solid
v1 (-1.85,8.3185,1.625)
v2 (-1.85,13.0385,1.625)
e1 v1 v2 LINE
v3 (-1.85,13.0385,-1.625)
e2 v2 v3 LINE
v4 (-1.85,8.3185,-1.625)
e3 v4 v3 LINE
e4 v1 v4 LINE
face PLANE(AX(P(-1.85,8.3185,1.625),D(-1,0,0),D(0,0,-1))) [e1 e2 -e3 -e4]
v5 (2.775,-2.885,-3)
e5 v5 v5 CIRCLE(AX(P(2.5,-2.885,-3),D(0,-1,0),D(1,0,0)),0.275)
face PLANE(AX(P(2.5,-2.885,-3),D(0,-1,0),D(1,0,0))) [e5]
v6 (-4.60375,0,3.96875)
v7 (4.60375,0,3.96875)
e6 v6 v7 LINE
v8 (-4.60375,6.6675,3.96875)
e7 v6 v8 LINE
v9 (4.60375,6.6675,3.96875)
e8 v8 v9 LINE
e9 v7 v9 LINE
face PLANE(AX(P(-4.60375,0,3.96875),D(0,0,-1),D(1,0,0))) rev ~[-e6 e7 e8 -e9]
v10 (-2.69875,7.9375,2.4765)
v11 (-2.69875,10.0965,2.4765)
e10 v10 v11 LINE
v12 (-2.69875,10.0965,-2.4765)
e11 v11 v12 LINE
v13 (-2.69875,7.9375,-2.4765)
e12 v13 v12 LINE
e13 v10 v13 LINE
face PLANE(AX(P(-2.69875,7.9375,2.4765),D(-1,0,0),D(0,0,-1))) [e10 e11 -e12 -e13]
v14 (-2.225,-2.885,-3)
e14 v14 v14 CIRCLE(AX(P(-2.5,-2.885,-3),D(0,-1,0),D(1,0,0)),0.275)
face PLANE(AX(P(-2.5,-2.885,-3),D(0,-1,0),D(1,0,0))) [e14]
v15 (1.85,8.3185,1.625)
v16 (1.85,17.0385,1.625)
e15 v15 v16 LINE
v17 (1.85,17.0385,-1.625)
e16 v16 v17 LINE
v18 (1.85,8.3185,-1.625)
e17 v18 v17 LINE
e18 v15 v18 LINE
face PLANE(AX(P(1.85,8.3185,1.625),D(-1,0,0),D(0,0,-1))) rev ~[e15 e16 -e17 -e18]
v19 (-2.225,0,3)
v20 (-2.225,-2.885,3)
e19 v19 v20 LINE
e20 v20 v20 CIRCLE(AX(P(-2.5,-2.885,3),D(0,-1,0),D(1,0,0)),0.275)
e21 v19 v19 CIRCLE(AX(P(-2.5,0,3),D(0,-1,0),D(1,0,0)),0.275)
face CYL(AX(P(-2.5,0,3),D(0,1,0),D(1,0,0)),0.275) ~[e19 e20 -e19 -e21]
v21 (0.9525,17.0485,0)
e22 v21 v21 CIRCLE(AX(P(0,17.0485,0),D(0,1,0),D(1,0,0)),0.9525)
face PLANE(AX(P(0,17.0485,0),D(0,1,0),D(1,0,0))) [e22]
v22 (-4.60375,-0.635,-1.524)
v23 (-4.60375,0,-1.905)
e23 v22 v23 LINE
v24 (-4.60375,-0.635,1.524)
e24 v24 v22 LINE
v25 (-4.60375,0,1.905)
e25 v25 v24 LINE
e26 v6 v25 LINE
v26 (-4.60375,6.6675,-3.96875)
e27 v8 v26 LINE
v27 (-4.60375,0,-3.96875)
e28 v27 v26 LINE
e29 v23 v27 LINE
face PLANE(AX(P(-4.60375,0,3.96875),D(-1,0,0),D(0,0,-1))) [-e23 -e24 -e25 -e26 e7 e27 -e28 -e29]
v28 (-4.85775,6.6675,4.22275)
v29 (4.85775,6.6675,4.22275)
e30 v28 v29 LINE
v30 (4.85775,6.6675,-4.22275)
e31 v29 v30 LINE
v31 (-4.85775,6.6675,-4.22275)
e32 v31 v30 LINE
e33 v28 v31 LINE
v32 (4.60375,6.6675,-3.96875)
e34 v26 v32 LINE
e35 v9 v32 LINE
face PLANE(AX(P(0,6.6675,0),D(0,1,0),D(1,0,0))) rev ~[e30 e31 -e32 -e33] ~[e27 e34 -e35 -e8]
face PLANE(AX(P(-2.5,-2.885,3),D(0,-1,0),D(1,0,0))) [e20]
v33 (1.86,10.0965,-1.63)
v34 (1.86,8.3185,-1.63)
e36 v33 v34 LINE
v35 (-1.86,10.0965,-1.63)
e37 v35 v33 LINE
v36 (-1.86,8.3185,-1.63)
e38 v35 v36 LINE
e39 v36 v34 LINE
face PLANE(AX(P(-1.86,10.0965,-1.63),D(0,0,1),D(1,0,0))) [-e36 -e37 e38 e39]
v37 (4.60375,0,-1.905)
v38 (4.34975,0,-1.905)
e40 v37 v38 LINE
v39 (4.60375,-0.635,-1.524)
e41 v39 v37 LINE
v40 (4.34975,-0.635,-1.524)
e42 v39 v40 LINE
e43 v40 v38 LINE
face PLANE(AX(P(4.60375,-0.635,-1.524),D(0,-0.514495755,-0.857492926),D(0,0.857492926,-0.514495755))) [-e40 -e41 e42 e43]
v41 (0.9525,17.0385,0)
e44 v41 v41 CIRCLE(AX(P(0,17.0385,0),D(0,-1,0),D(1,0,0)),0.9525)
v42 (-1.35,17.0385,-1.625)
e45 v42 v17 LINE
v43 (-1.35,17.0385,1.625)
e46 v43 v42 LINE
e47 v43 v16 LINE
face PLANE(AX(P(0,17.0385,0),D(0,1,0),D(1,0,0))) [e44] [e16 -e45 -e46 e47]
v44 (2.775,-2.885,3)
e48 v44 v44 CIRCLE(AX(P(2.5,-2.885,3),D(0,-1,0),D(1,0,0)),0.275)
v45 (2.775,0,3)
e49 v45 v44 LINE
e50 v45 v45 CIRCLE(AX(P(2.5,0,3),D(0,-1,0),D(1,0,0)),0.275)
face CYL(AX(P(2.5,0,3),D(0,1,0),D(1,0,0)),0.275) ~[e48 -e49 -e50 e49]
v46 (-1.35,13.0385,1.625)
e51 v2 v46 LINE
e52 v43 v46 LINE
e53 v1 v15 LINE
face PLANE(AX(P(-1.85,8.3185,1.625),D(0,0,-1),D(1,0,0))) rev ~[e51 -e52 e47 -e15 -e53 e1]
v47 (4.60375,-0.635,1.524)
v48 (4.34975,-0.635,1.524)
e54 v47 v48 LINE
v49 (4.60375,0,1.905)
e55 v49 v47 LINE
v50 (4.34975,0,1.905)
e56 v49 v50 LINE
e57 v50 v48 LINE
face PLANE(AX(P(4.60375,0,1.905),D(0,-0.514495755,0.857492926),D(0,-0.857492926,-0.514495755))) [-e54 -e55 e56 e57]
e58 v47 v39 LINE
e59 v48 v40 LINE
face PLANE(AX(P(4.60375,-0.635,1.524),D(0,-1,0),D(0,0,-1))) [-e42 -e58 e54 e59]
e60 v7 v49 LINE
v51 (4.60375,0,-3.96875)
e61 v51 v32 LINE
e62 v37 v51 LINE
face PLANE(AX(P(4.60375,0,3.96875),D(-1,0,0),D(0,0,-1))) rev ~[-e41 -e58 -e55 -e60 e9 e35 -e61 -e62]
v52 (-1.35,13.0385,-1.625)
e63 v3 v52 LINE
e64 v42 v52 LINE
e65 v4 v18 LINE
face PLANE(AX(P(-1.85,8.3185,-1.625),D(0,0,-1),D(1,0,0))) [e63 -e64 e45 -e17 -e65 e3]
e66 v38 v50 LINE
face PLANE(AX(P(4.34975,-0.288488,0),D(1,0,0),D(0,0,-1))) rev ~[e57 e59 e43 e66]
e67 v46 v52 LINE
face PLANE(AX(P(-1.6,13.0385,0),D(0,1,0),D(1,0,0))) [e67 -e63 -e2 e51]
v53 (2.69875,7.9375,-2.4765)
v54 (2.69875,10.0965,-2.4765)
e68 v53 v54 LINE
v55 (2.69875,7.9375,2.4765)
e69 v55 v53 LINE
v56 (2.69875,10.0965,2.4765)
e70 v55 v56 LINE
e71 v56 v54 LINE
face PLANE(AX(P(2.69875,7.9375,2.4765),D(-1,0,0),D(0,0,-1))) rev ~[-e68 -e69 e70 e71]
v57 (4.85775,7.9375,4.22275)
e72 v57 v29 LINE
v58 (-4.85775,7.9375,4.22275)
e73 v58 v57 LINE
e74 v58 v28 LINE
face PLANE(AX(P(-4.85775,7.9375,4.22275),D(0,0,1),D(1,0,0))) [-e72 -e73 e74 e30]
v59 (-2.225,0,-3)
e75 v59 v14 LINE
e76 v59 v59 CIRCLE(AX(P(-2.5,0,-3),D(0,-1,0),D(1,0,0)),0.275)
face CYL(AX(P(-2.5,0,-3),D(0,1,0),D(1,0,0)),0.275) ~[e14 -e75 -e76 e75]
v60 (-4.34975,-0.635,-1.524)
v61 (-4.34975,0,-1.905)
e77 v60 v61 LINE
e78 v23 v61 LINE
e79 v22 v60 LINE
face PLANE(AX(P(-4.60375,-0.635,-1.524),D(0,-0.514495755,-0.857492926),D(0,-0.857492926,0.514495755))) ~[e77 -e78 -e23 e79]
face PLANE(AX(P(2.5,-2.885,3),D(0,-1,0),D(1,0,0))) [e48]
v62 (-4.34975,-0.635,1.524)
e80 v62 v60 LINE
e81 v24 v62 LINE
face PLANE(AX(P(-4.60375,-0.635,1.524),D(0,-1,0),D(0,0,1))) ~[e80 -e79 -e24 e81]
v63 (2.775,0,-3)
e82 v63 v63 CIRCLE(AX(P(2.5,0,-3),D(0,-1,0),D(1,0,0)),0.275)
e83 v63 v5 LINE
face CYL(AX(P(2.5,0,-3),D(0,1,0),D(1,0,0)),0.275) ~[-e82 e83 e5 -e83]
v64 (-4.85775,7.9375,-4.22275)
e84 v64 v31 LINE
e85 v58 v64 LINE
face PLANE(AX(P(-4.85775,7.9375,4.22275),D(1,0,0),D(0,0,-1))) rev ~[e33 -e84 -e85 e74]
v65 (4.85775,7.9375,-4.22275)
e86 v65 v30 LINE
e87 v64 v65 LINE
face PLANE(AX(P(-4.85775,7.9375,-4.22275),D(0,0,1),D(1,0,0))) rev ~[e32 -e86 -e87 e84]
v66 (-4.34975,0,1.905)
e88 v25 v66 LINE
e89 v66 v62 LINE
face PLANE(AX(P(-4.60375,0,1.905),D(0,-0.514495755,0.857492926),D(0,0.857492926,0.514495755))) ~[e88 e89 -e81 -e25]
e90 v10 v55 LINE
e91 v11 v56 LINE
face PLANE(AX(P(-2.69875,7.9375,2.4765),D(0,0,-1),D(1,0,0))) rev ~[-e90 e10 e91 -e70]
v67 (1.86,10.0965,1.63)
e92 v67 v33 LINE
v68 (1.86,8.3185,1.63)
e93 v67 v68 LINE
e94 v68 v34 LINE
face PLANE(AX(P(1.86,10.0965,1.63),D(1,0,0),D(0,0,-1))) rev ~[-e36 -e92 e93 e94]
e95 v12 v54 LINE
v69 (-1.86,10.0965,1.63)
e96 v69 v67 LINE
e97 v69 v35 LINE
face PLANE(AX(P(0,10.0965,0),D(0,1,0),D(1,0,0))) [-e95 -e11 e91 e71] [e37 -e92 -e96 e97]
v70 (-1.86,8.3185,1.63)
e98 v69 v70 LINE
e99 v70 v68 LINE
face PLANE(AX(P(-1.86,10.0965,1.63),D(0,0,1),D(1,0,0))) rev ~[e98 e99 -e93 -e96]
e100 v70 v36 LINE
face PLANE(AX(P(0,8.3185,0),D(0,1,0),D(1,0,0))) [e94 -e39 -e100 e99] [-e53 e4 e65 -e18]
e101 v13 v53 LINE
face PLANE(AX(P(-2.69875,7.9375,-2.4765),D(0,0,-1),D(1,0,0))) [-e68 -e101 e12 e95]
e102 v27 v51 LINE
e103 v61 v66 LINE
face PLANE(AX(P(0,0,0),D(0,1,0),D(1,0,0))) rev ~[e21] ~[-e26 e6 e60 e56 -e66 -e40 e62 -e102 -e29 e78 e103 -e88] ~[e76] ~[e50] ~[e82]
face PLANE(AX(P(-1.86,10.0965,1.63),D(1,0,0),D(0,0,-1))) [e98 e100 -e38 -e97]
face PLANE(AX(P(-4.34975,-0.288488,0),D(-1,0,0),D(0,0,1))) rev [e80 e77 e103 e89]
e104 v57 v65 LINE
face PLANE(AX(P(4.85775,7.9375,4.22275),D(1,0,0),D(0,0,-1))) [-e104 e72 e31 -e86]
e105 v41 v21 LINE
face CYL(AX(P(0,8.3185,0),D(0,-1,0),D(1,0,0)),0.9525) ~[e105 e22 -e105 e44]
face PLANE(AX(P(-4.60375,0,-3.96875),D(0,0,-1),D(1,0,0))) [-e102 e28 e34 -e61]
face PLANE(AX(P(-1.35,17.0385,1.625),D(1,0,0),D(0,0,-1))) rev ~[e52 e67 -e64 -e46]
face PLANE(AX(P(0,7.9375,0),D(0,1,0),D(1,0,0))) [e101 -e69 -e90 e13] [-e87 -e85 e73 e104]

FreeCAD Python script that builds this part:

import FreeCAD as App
import Part
import Sketcher

V = App.Vector
Q = App.Units.Quantity

doc = App.newDocument("Part")
params = doc.addObject("Spreadsheet::Sheet", "Params")
for row, (alias, value) in enumerate([
    ("sketch1_height", "0.3125 in"),
    ("pad1_length", "0.3125 in"),
    ("sketch2_height", "0.195 in"),
    ("pad2_length", "0.085 in"),
    ("pocket1_length", "0.07 in"),
    ("sketch4_height", "0.195 in"),
    ("pad3_length", "0.05 in"),
    ("sketch5_height", "0.15 in"),
    ("sketch5_height2", "0.12 in"),
    ("pad4_length", "0.01 in"),
    ("pad5_length", "8.72 mm"),
    ("pocket2_length", "4 mm"),
    ("sketch8_diameter", "0.075 in"),
    ("pad6_length", "8.73 mm"),
    ("pad7_length", "2.885 mm"),
], start=1):
    params.set(f"A{row}", alias)
    params.set(f"B{row}", "=" + value)
    params.setAlias(f"B{row}", alias)

body = doc.addObject("PartDesign::Body", "Body")

# Sketch on XZ plane
sketch1 = body.newObject("Sketcher::SketchObject", "Sketch")
sketch1.AttachmentSupport = (doc.getObject("XZ_Plane"), [""])
sketch1.MapMode = "FlatFace"
sketch1.addGeometry([
    Part.LineSegment(V(-5, -4, 0), V(-5, 4, 0)),
    Part.LineSegment(V(-5, 4, 0), V(5, 4, 0)),
    Part.LineSegment(V(5, 4, 0), V(5, -4, 0)),
    Part.LineSegment(V(5, -4, 0), V(-5, -4, 0)),
], False)
sketch1.addConstraint([
    Sketcher.Constraint("Coincident", 0, 2, 1, 1),
    Sketcher.Constraint("Coincident", 1, 2, 2, 1),
    Sketcher.Constraint("Coincident", 2, 2, 3, 1),
    Sketcher.Constraint("Coincident", 3, 2, 0, 1),
    Sketcher.Constraint("Vertical", 0),
    Sketcher.Constraint("Horizontal", 1),
    Sketcher.Constraint("Vertical", 2),
    Sketcher.Constraint("Horizontal", 3),
    Sketcher.Constraint("Symmetric", 0, 2, 2, 2, -1, 1),
    Sketcher.Constraint("DistanceY", 0, 1, 0, 2, Q("0.3125 in")),
    Sketcher.Constraint("DistanceX", 1, 1, 1, 2, Q("0.3625 in")),
])
sketch1.setExpression("Constraints[9]", "Params.sketch1_height")
pad1 = body.newObject("PartDesign::Pad", "Pad")
pad1.Profile = sketch1
pad1.setExpression("Length", "Params.pad1_length")
pad1.Reversed = True

# Sketch on XZ plane
sketch2 = body.newObject("Sketcher::SketchObject", "Sketch001")
sketch2.AttachmentSupport = (doc.getObject("XZ_Plane"), [""])
sketch2.MapMode = "FlatFace"
sketch2.AttachmentOffset = App.Placement(V(0, 0, -0.3125 * 25.4), App.Rotation())
sketch2.addGeometry([
    Part.LineSegment(V(-2.7, -2.5, 0), V(-2.7, 2.5, 0)),
    Part.LineSegment(V(-2.7, 2.5, 0), V(2.7, 2.5, 0)),
    Part.LineSegment(V(2.7, 2.5, 0), V(2.7, -2.5, 0)),
    Part.LineSegment(V(2.7, -2.5, 0), V(-2.7, -2.5, 0)),
], False)
sketch2.addConstraint([
    Sketcher.Constraint("Coincident", 0, 2, 1, 1),
    Sketcher.Constraint("Coincident", 1, 2, 2, 1),
    Sketcher.Constraint("Coincident", 2, 2, 3, 1),
    Sketcher.Constraint("Coincident", 3, 2, 0, 1),
    Sketcher.Constraint("Vertical", 0),
    Sketcher.Constraint("Horizontal", 1),
    Sketcher.Constraint("Vertical", 2),
    Sketcher.Constraint("Horizontal", 3),
    Sketcher.Constraint("Symmetric", 0, 2, 2, 2, -1, 1),
    Sketcher.Constraint("DistanceY", 0, 1, 0, 2, Q("0.195 in")),
    Sketcher.Constraint("DistanceX", 1, 1, 1, 2, Q("0.2125 in")),
])
sketch2.setExpression("Constraints[9]", "Params.sketch2_height")
pad2 = body.newObject("PartDesign::Pad", "Pad001")
pad2.Profile = sketch2
pad2.setExpression("Length", "Params.pad2_length")
pad2.Reversed = True

# Sketch on XZ plane
sketch3 = body.newObject("Sketcher::SketchObject", "Sketch002")
sketch3.AttachmentSupport = (doc.getObject("XZ_Plane"), [""])
sketch3.MapMode = "FlatFace"
sketch3.AttachmentOffset = App.Placement(V(0, 0, -0.3975 * 25.4), App.Rotation())
sketch3.addGeometry([
    Part.LineSegment(V(-1.9, -1.6, 0), V(-1.9, 1.6, 0)),
    Part.LineSegment(V(-1.9, 1.6, 0), V(1.9, 1.6, 0)),
    Part.LineSegment(V(1.9, 1.6, 0), V(1.9, -1.6, 0)),
    Part.LineSegment(V(1.9, -1.6, 0), V(-1.9, -1.6, 0)),
], False)
sketch3.addConstraint([
    Sketcher.Constraint("Coincident", 0, 2, 1, 1),
    Sketcher.Constraint("Coincident", 1, 2, 2, 1),
    Sketcher.Constraint("Coincident", 2, 2, 3, 1),
    Sketcher.Constraint("Coincident", 3, 2, 0, 1),
    Sketcher.Constraint("Vertical", 0),
    Sketcher.Constraint("Horizontal", 1),
    Sketcher.Constraint("Vertical", 2),
    Sketcher.Constraint("Horizontal", 3),
    Sketcher.Constraint("Symmetric", 0, 2, 2, 2, -1, 1),
    Sketcher.Constraint("DistanceX", 1, 1, 1, 2, Q("3.72 mm")),
    Sketcher.Constraint("DistanceY", 0, 1, 0, 2, Q("3.26 mm")),
])
pocket1 = body.newObject("PartDesign::Pocket", "Pocket")
pocket1.Profile = sketch3
pocket1.setExpression("Length", "Params.pocket1_length")
pocket1.Reversed = True

# Sketch on XZ plane
sketch4 = body.newObject("Sketcher::SketchObject", "Sketch003")
sketch4.AttachmentSupport = (doc.getObject("XZ_Plane"), [""])
sketch4.MapMode = "FlatFace"
sketch4.AttachmentOffset = App.Placement(V(0, 0, -0.3125 * 25.4), App.Rotation())
sketch4.addGeometry([
    Part.LineSegment(V(-4.9, -4.2, 0), V(-4.9, 4.2, 0)),  # 0
    Part.LineSegment(V(-4.9, 4.2, 0), V(4.9, 4.2, 0)),  # 1
    Part.LineSegment(V(4.9, 4.2, 0), V(4.9, -4.2, 0)),  # 2
    Part.LineSegment(V(4.9, -4.2, 0), V(-4.9, -4.2, 0)),  # 3
    Part.LineSegment(V(2.7, 2.5, 0), V(-2.7, 2.5, 0)),  # 4
    Part.LineSegment(V(-2.7, 2.5, 0), V(-2.7, -2.5, 0)),  # 5
    Part.LineSegment(V(-2.7, -2.5, 0), V(2.7, -2.5, 0)),  # 6
    Part.LineSegment(V(2.7, -2.5, 0), V(2.7, 2.5, 0)),  # 7
], False)
sketch4.addConstraint([
    Sketcher.Constraint("Coincident", 0, 2, 1, 1),
    Sketcher.Constraint("Coincident", 1, 2, 2, 1),
    Sketcher.Constraint("Coincident", 2, 2, 3, 1),
    Sketcher.Constraint("Coincident", 3, 2, 0, 1),
    Sketcher.Constraint("Coincident", 4, 2, 5, 1),
    Sketcher.Constraint("Coincident", 5, 2, 6, 1),
    Sketcher.Constraint("Coincident", 6, 2, 7, 1),
    Sketcher.Constraint("Coincident", 7, 2, 4, 1),
    Sketcher.Constraint("Vertical", 0),
    Sketcher.Constraint("Horizontal", 1),
    Sketcher.Constraint("Vertical", 2),
    Sketcher.Constraint("Horizontal", 3),
    Sketcher.Constraint("Horizontal", 4),
    Sketcher.Constraint("Vertical", 5),
    Sketcher.Constraint("Horizontal", 6),
    Sketcher.Constraint("Vertical", 7),
    Sketcher.Constraint("Symmetric", 0, 2, 2, 2, -1, 1),
    Sketcher.Constraint("Symmetric", 4, 2, 6, 2, -1, 1),
    Sketcher.Constraint("DistanceY", 5, 2, 5, 1, Q("0.195 in")),
    Sketcher.Constraint("DistanceX", 1, 1, 1, 2, Q("0.3825 in")),
    Sketcher.Constraint("DistanceX", 4, 2, 4, 1, Q("0.2125 in")),
    Sketcher.Constraint("DistanceY", 0, 1, 0, 2, Q("0.3325 in")),
])
sketch4.setExpression("Constraints[18]", "Params.sketch4_height")
pad3 = body.newObject("PartDesign::Pad", "Pad002")
pad3.Profile = sketch4
pad3.setExpression("Length", "Params.pad3_length")

# Sketch on YZ plane
sketch5 = body.newObject("Sketcher::SketchObject", "Sketch004")
sketch5.AttachmentSupport = (doc.getObject("YZ_Plane"), [""])
sketch5.MapMode = "FlatFace"
sketch5.AttachmentOffset = App.Placement(V(0, 0, 4.60375), App.Rotation())
sketch5.addGeometry([
    Part.LineSegment(V(-0.6, -1.5, 0), V(0, -1.9, 0)),
    Part.LineSegment(V(0, -1.9, 0), V(0, 1.9, 0)),
    Part.LineSegment(V(0, 1.9, 0), V(-0.6, 1.5, 0)),
    Part.LineSegment(V(-0.6, 1.5, 0), V(-0.6, -1.5, 0)),
], False)
sketch5.addConstraint([
    Sketcher.Constraint("Coincident", 0, 2, 1, 1),
    Sketcher.Constraint("Coincident", 1, 2, 2, 1),
    Sketcher.Constraint("Coincident", 2, 2, 3, 1),
    Sketcher.Constraint("Coincident", 3, 2, 0, 1),
    Sketcher.Constraint("Vertical", 1),
    Sketcher.Constraint("Vertical", 3),
    Sketcher.Constraint("Symmetric", 0, 2, 1, 2, -1, 1),
    Sketcher.Constraint("Equal", 0, 2),
    Sketcher.Constraint("DistanceY", 1, 1, 1, 2, Q("0.15 in")),
    Sketcher.Constraint("DistanceY", 3, 2, 3, 1, Q("0.12 in")),
    Sketcher.Constraint("DistanceX", 2, 2, -1, 1, Q("0.025 in")),
])
sketch5.setExpression("Constraints[8]", "Params.sketch5_height")
sketch5.setExpression("Constraints[9]", "Params.sketch5_height2")
pad4 = body.newObject("PartDesign::Pad", "Pad003")
pad4.Profile = sketch5
pad4.setExpression("Length", "Params.pad4_length")
pad4.Reversed = True
doc.recompute()

mirrored = body.newObject("PartDesign::Mirrored", "Mirrored")
mirrored.Originals = [pad4]
mirrored.MirrorPlane = (doc.getObject("YZ_Plane"), [""])
body.Tip = mirrored

# Sketch on XZ plane
sketch6 = body.newObject("Sketcher::SketchObject", "Sketch005")
sketch6.AttachmentSupport = (doc.getObject("XZ_Plane"), [""])
sketch6.MapMode = "FlatFace"
sketch6.AttachmentOffset = App.Placement(V(0, 0, -0.3275 * 25.4), App.Rotation())
sketch6.addGeometry([
    Part.LineSegment(V(-1.9, -1.6, 0), V(-1.9, 1.6, 0)),
    Part.LineSegment(V(-1.9, 1.6, 0), V(1.9, 1.6, 0)),
    Part.LineSegment(V(1.9, 1.6, 0), V(1.9, -1.6, 0)),
    Part.LineSegment(V(1.9, -1.6, 0), V(-1.9, -1.6, 0)),
], False)
sketch6.addConstraint([
    Sketcher.Constraint("Coincident", 0, 2, 1, 1),
    Sketcher.Constraint("Coincident", 1, 2, 2, 1),
    Sketcher.Constraint("Coincident", 2, 2, 3, 1),
    Sketcher.Constraint("Coincident", 3, 2, 0, 1),
    Sketcher.Constraint("Vertical", 0),
    Sketcher.Constraint("Horizontal", 1),
    Sketcher.Constraint("Vertical", 2),
    Sketcher.Constraint("Horizontal", 3),
    Sketcher.Constraint("Symmetric", 0, 2, 2, 2, -1, 1),
    Sketcher.Constraint("DistanceX", 1, 1, 1, 2, Q("3.7 mm")),
    Sketcher.Constraint("DistanceY", 0, 1, 0, 2, Q("3.25 mm")),
])
pad5 = body.newObject("PartDesign::Pad", "Pad004")
pad5.Profile = sketch6
pad5.setExpression("Length", "Params.pad5_length")
pad5.Reversed = True

# Sketch on XZ plane
sketch7 = body.newObject("Sketcher::SketchObject", "Sketch006")
sketch7.AttachmentSupport = (doc.getObject("XZ_Plane"), [""])
sketch7.MapMode = "FlatFace"
sketch7.AttachmentOffset = App.Placement(V(0, 0, -17.0385), App.Rotation())
sketch7.addGeometry([
    Part.LineSegment(V(-1.9, -1.6, 0), V(-1.9, 1.6, 0)),
    Part.LineSegment(V(-1.9, 1.6, 0), V(-1.4, 1.6, 0)),
    Part.LineSegment(V(-1.4, 1.6, 0), V(-1.4, -1.6, 0)),
    Part.LineSegment(V(-1.4, -1.6, 0), V(-1.9, -1.6, 0)),
], False)
sketch7.addConstraint([
    Sketcher.Constraint("Coincident", 0, 2, 1, 1),
    Sketcher.Constraint("Coincident", 1, 2, 2, 1),
    Sketcher.Constraint("Coincident", 2, 2, 3, 1),
    Sketcher.Constraint("Coincident", 3, 2, 0, 1),
    Sketcher.Constraint("Vertical", 0),
    Sketcher.Constraint("Horizontal", 1),
    Sketcher.Constraint("Vertical", 2),
    Sketcher.Constraint("Horizontal", 3),
    Sketcher.Constraint("DistanceX", 1, 1, 1, 2, Q("0.5 mm")),
    Sketcher.Constraint("DistanceY", 0, 1, 0, 2, Q("3.25 mm")),
    Sketcher.Constraint("DistanceX", 0, 2, -1, 1, Q("1.85 mm")),
    Sketcher.Constraint("DistanceY", -1, 1, 0, 2, Q("1.625 mm")),
])
pocket2 = body.newObject("PartDesign::Pocket", "Pocket001")
pocket2.Profile = sketch7
pocket2.setExpression("Length", "Params.pocket2_length")
pocket2.Reversed = True

# Sketch on XZ plane
sketch8 = body.newObject("Sketcher::SketchObject", "Sketch007")
sketch8.AttachmentSupport = (doc.getObject("XZ_Plane"), [""])
sketch8.MapMode = "FlatFace"
sketch8.AttachmentOffset = App.Placement(V(0, 0, -0.3275 * 25.4), App.Rotation())
sketch8.addGeometry(Part.Circle(V(0, 0, 0), V(0, 0, 1), 1), False)
sketch8.addConstraint([
    Sketcher.Constraint("Coincident", 0, 3, -1, 1),
    Sketcher.Constraint("Diameter", 0, Q("0.075 in")),
])
sketch8.setExpression("Constraints[1]", "Params.sketch8_diameter")
pad6 = body.newObject("PartDesign::Pad", "Pad005")
pad6.Profile = sketch8
pad6.setExpression("Length", "Params.pad6_length")
pad6.Reversed = True

# Sketch on XZ plane
sketch9 = body.newObject("Sketcher::SketchObject", "Sketch008")
sketch9.AttachmentSupport = (doc.getObject("XZ_Plane"), [""])
sketch9.MapMode = "FlatFace"
sketch9.addGeometry([
    Part.Circle(V(-2.5, 3, 0), V(0, 0, 1), 0.28),
    Part.Circle(V(2.5, 3, 0), V(0, 0, 1), 0.28),
    Part.Circle(V(2.5, -3, 0), V(0, 0, 1), 0.28),
    Part.Circle(V(-2.5, -3, 0), V(0, 0, 1), 0.28),
], False)
sketch9.addConstraint([
    Sketcher.Constraint("Equal", 0, 1),
    Sketcher.Constraint("Equal", 1, 2),
    Sketcher.Constraint("Equal", 2, 3),
    Sketcher.Constraint("Symmetric", 0, 3, 2, 3, -1, 1),
    Sketcher.Constraint("Symmetric", 1, 3, 3, 3, -1, 1),
    Sketcher.Constraint("Symmetric", 0, 3, 1, 3, -2),
    Sketcher.Constraint("Diameter", 0, Q("0.55 mm")),
    Sketcher.Constraint("DistanceX", 0, 3, -1, 1, Q("2.5 mm")),
    Sketcher.Constraint("DistanceY", -1, 1, 0, 3, Q("3 mm")),
])
pad7 = body.newObject("PartDesign::Pad", "Pad006")
pad7.Profile = sketch9
pad7.setExpression("Length", "Params.pad7_length")

doc.recompute()
